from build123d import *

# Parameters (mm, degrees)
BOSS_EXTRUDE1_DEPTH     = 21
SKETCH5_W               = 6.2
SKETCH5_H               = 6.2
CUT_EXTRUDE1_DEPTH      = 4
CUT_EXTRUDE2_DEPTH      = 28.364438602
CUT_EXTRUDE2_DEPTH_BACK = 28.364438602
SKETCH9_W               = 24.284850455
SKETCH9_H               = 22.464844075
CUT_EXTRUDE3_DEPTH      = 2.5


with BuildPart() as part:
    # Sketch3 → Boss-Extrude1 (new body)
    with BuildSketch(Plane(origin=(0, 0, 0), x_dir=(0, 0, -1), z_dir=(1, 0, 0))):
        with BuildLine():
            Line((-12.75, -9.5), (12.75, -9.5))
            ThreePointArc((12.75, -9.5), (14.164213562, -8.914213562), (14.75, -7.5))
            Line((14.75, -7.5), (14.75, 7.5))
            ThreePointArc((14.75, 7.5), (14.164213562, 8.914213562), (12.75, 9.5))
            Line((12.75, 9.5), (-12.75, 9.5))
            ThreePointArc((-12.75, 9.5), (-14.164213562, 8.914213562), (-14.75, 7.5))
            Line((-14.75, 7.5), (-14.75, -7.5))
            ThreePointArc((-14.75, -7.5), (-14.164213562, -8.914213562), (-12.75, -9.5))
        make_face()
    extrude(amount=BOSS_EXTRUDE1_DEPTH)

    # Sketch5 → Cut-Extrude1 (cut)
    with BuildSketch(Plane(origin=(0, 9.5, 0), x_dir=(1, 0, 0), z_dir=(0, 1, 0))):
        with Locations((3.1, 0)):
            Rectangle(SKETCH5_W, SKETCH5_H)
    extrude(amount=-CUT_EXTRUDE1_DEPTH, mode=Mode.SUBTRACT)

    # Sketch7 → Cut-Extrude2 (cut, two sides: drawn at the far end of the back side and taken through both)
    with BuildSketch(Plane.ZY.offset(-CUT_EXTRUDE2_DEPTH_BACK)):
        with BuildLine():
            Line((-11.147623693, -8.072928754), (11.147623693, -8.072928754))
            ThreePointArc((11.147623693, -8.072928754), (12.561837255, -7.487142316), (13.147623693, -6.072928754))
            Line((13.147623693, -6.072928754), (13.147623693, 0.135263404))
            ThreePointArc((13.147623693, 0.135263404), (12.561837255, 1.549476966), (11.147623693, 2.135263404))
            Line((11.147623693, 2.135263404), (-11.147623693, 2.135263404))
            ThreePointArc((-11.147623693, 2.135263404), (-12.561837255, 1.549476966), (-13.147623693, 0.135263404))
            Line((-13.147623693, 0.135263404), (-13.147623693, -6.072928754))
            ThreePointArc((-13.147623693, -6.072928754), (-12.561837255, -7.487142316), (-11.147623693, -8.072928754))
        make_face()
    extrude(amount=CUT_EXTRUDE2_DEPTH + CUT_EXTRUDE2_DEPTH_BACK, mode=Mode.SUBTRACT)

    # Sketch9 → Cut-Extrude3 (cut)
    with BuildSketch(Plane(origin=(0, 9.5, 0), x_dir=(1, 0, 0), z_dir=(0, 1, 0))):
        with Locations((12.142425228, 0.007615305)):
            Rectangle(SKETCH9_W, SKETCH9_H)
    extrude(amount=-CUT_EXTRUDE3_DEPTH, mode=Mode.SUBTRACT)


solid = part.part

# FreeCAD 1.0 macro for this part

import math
import FreeCAD as App
import Part
import Sketcher
from FreeCAD import Vector

doc = App.newDocument("Part")
body = doc.addObject("PartDesign::Body", "Body")

# Sketch on YZ plane
sketch1 = body.newObject("Sketcher::SketchObject", "Sketch")
sketch1.AttachmentSupport = (doc.getObject("YZ_Plane"), [""])
sketch1.MapMode = "FlatFace"
sketch1.addGeometry(Part.LineSegment(Vector(-9.5, 12.75, 0), Vector(-9.5, -12.75, 0)), False)
sketch1.addGeometry(Part.ArcOfCircle(Part.Circle(Vector(-7.5, -12.75, 0), Vector(0, 0, 1), 2), math.radians(-180), math.radians(-90)), False)
sketch1.addGeometry(Part.LineSegment(Vector(-7.5, -14.75, 0), Vector(7.5, -14.75, 0)), False)
sketch1.addGeometry(Part.ArcOfCircle(Part.Circle(Vector(7.5, -12.75, 0), Vector(0, 0, 1), 2), math.radians(-90), math.radians(0)), False)
sketch1.addGeometry(Part.LineSegment(Vector(9.5, -12.75, 0), Vector(9.5, 12.75, 0)), False)
sketch1.addGeometry(Part.ArcOfCircle(Part.Circle(Vector(7.5, 12.75, 0), Vector(0, 0, 1), 2), math.radians(0), math.radians(90)), False)
sketch1.addGeometry(Part.LineSegment(Vector(7.5, 14.75, 0), Vector(-7.5, 14.75, 0)), False)
sketch1.addGeometry(Part.ArcOfCircle(Part.Circle(Vector(-7.5, 12.75, 0), Vector(0, 0, 1), 2), math.radians(90), math.radians(180)), False)
sketch1.addConstraint(Sketcher.Constraint("Tangent", 0, 2, 1, 1))
sketch1.addConstraint(Sketcher.Constraint("Tangent", 1, 2, 2, 1))
sketch1.addConstraint(Sketcher.Constraint("Tangent", 2, 2, 3, 1))
sketch1.addConstraint(Sketcher.Constraint("Tangent", 3, 2, 4, 1))
sketch1.addConstraint(Sketcher.Constraint("Tangent", 4, 2, 5, 1))
sketch1.addConstraint(Sketcher.Constraint("Tangent", 5, 2, 6, 1))
sketch1.addConstraint(Sketcher.Constraint("Tangent", 6, 2, 7, 1))
sketch1.addConstraint(Sketcher.Constraint("Tangent", 7, 2, 0, 1))
sketch1.addConstraint(Sketcher.Constraint("Vertical", 0))
sketch1.addConstraint(Sketcher.Constraint("Horizontal", 2))
sketch1.addConstraint(Sketcher.Constraint("Vertical", 4))
sketch1.addConstraint(Sketcher.Constraint("Horizontal", 6))
sketch1.addConstraint(Sketcher.Constraint("Equal", 1, 3))
sketch1.addConstraint(Sketcher.Constraint("Equal", 3, 5))
sketch1.addConstraint(Sketcher.Constraint("Equal", 5, 7))
sketch1.addConstraint(Sketcher.Constraint("Symmetric", 1, 3, 5, 3, -1, 1))
sketch1.addConstraint(Sketcher.Constraint("Radius", 1, 2.0))
sketch1.addConstraint(Sketcher.Constraint("DistanceX", 2, 1, 2, 2, 15.0))
sketch1.addConstraint(Sketcher.Constraint("DistanceY", 0, 2, 0, 1, 25.5))
pad1 = body.newObject("PartDesign::Pad", "Pad")
pad1.Profile = sketch1
pad1.Length = 21

# Sketch on XZ plane
sketch2 = body.newObject("Sketcher::SketchObject", "Sketch001")
sketch2.AttachmentSupport = (doc.getObject("XZ_Plane"), [""])
sketch2.MapMode = "FlatFace"
sketch2.AttachmentOffset = App.Placement(Vector(0, 0, -9.5), App.Rotation())
sketch2.addGeometry(Part.LineSegment(Vector(0, -3.1, 0), Vector(0, 3.1, 0)), False)
sketch2.addGeometry(Part.LineSegment(Vector(0, 3.1, 0), Vector(6.2, 3.1, 0)), False)
sketch2.addGeometry(Part.LineSegment(Vector(6.2, 3.1, 0), Vector(6.2, -3.1, 0)), False)
sketch2.addGeometry(Part.LineSegment(Vector(6.2, -3.1, 0), Vector(0, -3.1, 0)), False)
sketch2.addConstraint(Sketcher.Constraint("Coincident", 0, 2, 1, 1))
sketch2.addConstraint(Sketcher.Constraint("Coincident", 1, 2, 2, 1))
sketch2.addConstraint(Sketcher.Constraint("Coincident", 2, 2, 3, 1))
sketch2.addConstraint(Sketcher.Constraint("Coincident", 3, 2, 0, 1))
sketch2.addConstraint(Sketcher.Constraint("Vertical", 0))
sketch2.addConstraint(Sketcher.Constraint("Horizontal", 1))
sketch2.addConstraint(Sketcher.Constraint("Vertical", 2))
sketch2.addConstraint(Sketcher.Constraint("Horizontal", 3))
sketch2.addConstraint(Sketcher.Constraint("Symmetric", 0, 2, 3, 2, -1, 1))
sketch2.addConstraint(Sketcher.Constraint("Equal", 3, 0))
sketch2.addConstraint(Sketcher.Constraint("DistanceX", 1, 1, 1, 2, 6.2))
pocket1 = body.newObject("PartDesign::Pocket", "Pocket")
pocket1.Profile = sketch2
pocket1.Length = 4
pocket1.Reversed = True

# Sketch on YZ plane
sketch3 = body.newObject("Sketcher::SketchObject", "Sketch002")
sketch3.AttachmentSupport = (doc.getObject("YZ_Plane"), [""])
sketch3.MapMode = "FlatFace"
sketch3.addGeometry(Part.LineSegment(Vector(-8.072929, -11.147624, 0), Vector(-8.072929, 11.147624, 0)), False)
sketch3.addGeometry(Part.ArcOfCircle(Part.Circle(Vector(-6.072929, 11.147624, 0), Vector(0, 0, 1), 2), math.radians(90), math.radians(180)), False)
sketch3.addGeometry(Part.LineSegment(Vector(-6.072929, 13.147624, 0), Vector(0.135263, 13.147624, 0)), False)
sketch3.addGeometry(Part.ArcOfCircle(Part.Circle(Vector(0.135263, 11.147624, 0), Vector(0, 0, 1), 2), math.radians(0), math.radians(90)), False)
sketch3.addGeometry(Part.LineSegment(Vector(2.135263, 11.147624, 0), Vector(2.135263, -11.147624, 0)), False)
sketch3.addGeometry(Part.ArcOfCircle(Part.Circle(Vector(0.135263, -11.147624, 0), Vector(0, 0, 1), 2), math.radians(-90), math.radians(0)), False)
sketch3.addGeometry(Part.LineSegment(Vector(0.135263, -13.147624, 0), Vector(-6.072929, -13.147624, 0)), False)
sketch3.addGeometry(Part.ArcOfCircle(Part.Circle(Vector(-6.072929, -11.147624, 0), Vector(0, 0, 1), 2), math.radians(-180), math.radians(-90)), False)
sketch3.addConstraint(Sketcher.Constraint("Tangent", 0, 2, 1, 2))
sketch3.addConstraint(Sketcher.Constraint("Tangent", 1, 1, 2, 1))
sketch3.addConstraint(Sketcher.Constraint("Tangent", 2, 2, 3, 2))
sketch3.addConstraint(Sketcher.Constraint("Tangent", 3, 1, 4, 1))
sketch3.addConstraint(Sketcher.Constraint("Tangent", 4, 2, 5, 2))
sketch3.addConstraint(Sketcher.Constraint("Tangent", 5, 1, 6, 1))
sketch3.addConstraint(Sketcher.Constraint("Tangent", 6, 2, 7, 2))
sketch3.addConstraint(Sketcher.Constraint("Tangent", 7, 1, 0, 1))
sketch3.addConstraint(Sketcher.Constraint("Vertical", 0))
sketch3.addConstraint(Sketcher.Constraint("Horizontal", 2))
sketch3.addConstraint(Sketcher.Constraint("Vertical", 4))
sketch3.addConstraint(Sketcher.Constraint("Horizontal", 6))
sketch3.addConstraint(Sketcher.Constraint("Equal", 1, 3))
sketch3.addConstraint(Sketcher.Constraint("Equal", 3, 5))
sketch3.addConstraint(Sketcher.Constraint("Equal", 5, 7))
sketch3.addConstraint(Sketcher.Constraint("Radius", 1, 2.0))
sketch3.addConstraint(Sketcher.Constraint("DistanceX", 2, 1, 2, 2, 6.208192))
sketch3.addConstraint(Sketcher.Constraint("DistanceY", 0, 1, 0, 2, 22.295247))
sketch3.addConstraint(Sketcher.Constraint("DistanceX", 1, 3, -1, 1, 6.072929))
sketch3.addConstraint(Sketcher.Constraint("DistanceY", -1, 1, 1, 3, 11.147624))
pocket2 = body.newObject("PartDesign::Pocket", "Pocket001")
pocket2.Profile = sketch3
pocket2.Type = "ThroughAll"
pocket2.Midplane = True

# Sketch on XZ plane
sketch4 = body.newObject("Sketcher::SketchObject", "Sketch003")
sketch4.AttachmentSupport = (doc.getObject("XZ_Plane"), [""])
sketch4.MapMode = "FlatFace"
sketch4.AttachmentOffset = App.Placement(Vector(0, 0, -9.5), App.Rotation())
sketch4.addGeometry(Part.LineSegment(Vector(0, -11.240037, 0), Vector(0, 11.224807, 0)), False)
sketch4.addGeometry(Part.LineSegment(Vector(0, 11.224807, 0), Vector(24.28485, 11.224807, 0)), False)
sketch4.addGeometry(Part.LineSegment(Vector(24.28485, 11.224807, 0), Vector(24.28485, -11.240037, 0)), False)
sketch4.addGeometry(Part.LineSegment(Vector(24.28485, -11.240037, 0), Vector(0, -11.240037, 0)), False)
sketch4.addConstraint(Sketcher.Constraint("Coincident", 0, 2, 1, 1))
sketch4.addConstraint(Sketcher.Constraint("Coincident", 1, 2, 2, 1))
sketch4.addConstraint(Sketcher.Constraint("Coincident", 2, 2, 3, 1))
sketch4.addConstraint(Sketcher.Constraint("Coincident", 3, 2, 0, 1))
sketch4.addConstraint(Sketcher.Constraint("Vertical", 0))
sketch4.addConstraint(Sketcher.Constraint("Horizontal", 1))
sketch4.addConstraint(Sketcher.Constraint("Vertical", 2))
sketch4.addConstraint(Sketcher.Constraint("Horizontal", 3))
sketch4.addConstraint(Sketcher.Constraint("PointOnObject", 0, 2, -2))
sketch4.addConstraint(Sketcher.Constraint("DistanceX", 1, 1, 1, 2, 24.28485))
sketch4.addConstraint(Sketcher.Constraint("DistanceY", 0, 1, 0, 2, 22.464844))
sketch4.addConstraint(Sketcher.Constraint("DistanceY", -1, 1, 0, 2, 11.224807))
pocket3 = body.newObject("PartDesign::Pocket", "Pocket002")
pocket3.Profile = sketch4
pocket3.Length = 2.5
pocket3.Reversed = True

doc.recompute()
